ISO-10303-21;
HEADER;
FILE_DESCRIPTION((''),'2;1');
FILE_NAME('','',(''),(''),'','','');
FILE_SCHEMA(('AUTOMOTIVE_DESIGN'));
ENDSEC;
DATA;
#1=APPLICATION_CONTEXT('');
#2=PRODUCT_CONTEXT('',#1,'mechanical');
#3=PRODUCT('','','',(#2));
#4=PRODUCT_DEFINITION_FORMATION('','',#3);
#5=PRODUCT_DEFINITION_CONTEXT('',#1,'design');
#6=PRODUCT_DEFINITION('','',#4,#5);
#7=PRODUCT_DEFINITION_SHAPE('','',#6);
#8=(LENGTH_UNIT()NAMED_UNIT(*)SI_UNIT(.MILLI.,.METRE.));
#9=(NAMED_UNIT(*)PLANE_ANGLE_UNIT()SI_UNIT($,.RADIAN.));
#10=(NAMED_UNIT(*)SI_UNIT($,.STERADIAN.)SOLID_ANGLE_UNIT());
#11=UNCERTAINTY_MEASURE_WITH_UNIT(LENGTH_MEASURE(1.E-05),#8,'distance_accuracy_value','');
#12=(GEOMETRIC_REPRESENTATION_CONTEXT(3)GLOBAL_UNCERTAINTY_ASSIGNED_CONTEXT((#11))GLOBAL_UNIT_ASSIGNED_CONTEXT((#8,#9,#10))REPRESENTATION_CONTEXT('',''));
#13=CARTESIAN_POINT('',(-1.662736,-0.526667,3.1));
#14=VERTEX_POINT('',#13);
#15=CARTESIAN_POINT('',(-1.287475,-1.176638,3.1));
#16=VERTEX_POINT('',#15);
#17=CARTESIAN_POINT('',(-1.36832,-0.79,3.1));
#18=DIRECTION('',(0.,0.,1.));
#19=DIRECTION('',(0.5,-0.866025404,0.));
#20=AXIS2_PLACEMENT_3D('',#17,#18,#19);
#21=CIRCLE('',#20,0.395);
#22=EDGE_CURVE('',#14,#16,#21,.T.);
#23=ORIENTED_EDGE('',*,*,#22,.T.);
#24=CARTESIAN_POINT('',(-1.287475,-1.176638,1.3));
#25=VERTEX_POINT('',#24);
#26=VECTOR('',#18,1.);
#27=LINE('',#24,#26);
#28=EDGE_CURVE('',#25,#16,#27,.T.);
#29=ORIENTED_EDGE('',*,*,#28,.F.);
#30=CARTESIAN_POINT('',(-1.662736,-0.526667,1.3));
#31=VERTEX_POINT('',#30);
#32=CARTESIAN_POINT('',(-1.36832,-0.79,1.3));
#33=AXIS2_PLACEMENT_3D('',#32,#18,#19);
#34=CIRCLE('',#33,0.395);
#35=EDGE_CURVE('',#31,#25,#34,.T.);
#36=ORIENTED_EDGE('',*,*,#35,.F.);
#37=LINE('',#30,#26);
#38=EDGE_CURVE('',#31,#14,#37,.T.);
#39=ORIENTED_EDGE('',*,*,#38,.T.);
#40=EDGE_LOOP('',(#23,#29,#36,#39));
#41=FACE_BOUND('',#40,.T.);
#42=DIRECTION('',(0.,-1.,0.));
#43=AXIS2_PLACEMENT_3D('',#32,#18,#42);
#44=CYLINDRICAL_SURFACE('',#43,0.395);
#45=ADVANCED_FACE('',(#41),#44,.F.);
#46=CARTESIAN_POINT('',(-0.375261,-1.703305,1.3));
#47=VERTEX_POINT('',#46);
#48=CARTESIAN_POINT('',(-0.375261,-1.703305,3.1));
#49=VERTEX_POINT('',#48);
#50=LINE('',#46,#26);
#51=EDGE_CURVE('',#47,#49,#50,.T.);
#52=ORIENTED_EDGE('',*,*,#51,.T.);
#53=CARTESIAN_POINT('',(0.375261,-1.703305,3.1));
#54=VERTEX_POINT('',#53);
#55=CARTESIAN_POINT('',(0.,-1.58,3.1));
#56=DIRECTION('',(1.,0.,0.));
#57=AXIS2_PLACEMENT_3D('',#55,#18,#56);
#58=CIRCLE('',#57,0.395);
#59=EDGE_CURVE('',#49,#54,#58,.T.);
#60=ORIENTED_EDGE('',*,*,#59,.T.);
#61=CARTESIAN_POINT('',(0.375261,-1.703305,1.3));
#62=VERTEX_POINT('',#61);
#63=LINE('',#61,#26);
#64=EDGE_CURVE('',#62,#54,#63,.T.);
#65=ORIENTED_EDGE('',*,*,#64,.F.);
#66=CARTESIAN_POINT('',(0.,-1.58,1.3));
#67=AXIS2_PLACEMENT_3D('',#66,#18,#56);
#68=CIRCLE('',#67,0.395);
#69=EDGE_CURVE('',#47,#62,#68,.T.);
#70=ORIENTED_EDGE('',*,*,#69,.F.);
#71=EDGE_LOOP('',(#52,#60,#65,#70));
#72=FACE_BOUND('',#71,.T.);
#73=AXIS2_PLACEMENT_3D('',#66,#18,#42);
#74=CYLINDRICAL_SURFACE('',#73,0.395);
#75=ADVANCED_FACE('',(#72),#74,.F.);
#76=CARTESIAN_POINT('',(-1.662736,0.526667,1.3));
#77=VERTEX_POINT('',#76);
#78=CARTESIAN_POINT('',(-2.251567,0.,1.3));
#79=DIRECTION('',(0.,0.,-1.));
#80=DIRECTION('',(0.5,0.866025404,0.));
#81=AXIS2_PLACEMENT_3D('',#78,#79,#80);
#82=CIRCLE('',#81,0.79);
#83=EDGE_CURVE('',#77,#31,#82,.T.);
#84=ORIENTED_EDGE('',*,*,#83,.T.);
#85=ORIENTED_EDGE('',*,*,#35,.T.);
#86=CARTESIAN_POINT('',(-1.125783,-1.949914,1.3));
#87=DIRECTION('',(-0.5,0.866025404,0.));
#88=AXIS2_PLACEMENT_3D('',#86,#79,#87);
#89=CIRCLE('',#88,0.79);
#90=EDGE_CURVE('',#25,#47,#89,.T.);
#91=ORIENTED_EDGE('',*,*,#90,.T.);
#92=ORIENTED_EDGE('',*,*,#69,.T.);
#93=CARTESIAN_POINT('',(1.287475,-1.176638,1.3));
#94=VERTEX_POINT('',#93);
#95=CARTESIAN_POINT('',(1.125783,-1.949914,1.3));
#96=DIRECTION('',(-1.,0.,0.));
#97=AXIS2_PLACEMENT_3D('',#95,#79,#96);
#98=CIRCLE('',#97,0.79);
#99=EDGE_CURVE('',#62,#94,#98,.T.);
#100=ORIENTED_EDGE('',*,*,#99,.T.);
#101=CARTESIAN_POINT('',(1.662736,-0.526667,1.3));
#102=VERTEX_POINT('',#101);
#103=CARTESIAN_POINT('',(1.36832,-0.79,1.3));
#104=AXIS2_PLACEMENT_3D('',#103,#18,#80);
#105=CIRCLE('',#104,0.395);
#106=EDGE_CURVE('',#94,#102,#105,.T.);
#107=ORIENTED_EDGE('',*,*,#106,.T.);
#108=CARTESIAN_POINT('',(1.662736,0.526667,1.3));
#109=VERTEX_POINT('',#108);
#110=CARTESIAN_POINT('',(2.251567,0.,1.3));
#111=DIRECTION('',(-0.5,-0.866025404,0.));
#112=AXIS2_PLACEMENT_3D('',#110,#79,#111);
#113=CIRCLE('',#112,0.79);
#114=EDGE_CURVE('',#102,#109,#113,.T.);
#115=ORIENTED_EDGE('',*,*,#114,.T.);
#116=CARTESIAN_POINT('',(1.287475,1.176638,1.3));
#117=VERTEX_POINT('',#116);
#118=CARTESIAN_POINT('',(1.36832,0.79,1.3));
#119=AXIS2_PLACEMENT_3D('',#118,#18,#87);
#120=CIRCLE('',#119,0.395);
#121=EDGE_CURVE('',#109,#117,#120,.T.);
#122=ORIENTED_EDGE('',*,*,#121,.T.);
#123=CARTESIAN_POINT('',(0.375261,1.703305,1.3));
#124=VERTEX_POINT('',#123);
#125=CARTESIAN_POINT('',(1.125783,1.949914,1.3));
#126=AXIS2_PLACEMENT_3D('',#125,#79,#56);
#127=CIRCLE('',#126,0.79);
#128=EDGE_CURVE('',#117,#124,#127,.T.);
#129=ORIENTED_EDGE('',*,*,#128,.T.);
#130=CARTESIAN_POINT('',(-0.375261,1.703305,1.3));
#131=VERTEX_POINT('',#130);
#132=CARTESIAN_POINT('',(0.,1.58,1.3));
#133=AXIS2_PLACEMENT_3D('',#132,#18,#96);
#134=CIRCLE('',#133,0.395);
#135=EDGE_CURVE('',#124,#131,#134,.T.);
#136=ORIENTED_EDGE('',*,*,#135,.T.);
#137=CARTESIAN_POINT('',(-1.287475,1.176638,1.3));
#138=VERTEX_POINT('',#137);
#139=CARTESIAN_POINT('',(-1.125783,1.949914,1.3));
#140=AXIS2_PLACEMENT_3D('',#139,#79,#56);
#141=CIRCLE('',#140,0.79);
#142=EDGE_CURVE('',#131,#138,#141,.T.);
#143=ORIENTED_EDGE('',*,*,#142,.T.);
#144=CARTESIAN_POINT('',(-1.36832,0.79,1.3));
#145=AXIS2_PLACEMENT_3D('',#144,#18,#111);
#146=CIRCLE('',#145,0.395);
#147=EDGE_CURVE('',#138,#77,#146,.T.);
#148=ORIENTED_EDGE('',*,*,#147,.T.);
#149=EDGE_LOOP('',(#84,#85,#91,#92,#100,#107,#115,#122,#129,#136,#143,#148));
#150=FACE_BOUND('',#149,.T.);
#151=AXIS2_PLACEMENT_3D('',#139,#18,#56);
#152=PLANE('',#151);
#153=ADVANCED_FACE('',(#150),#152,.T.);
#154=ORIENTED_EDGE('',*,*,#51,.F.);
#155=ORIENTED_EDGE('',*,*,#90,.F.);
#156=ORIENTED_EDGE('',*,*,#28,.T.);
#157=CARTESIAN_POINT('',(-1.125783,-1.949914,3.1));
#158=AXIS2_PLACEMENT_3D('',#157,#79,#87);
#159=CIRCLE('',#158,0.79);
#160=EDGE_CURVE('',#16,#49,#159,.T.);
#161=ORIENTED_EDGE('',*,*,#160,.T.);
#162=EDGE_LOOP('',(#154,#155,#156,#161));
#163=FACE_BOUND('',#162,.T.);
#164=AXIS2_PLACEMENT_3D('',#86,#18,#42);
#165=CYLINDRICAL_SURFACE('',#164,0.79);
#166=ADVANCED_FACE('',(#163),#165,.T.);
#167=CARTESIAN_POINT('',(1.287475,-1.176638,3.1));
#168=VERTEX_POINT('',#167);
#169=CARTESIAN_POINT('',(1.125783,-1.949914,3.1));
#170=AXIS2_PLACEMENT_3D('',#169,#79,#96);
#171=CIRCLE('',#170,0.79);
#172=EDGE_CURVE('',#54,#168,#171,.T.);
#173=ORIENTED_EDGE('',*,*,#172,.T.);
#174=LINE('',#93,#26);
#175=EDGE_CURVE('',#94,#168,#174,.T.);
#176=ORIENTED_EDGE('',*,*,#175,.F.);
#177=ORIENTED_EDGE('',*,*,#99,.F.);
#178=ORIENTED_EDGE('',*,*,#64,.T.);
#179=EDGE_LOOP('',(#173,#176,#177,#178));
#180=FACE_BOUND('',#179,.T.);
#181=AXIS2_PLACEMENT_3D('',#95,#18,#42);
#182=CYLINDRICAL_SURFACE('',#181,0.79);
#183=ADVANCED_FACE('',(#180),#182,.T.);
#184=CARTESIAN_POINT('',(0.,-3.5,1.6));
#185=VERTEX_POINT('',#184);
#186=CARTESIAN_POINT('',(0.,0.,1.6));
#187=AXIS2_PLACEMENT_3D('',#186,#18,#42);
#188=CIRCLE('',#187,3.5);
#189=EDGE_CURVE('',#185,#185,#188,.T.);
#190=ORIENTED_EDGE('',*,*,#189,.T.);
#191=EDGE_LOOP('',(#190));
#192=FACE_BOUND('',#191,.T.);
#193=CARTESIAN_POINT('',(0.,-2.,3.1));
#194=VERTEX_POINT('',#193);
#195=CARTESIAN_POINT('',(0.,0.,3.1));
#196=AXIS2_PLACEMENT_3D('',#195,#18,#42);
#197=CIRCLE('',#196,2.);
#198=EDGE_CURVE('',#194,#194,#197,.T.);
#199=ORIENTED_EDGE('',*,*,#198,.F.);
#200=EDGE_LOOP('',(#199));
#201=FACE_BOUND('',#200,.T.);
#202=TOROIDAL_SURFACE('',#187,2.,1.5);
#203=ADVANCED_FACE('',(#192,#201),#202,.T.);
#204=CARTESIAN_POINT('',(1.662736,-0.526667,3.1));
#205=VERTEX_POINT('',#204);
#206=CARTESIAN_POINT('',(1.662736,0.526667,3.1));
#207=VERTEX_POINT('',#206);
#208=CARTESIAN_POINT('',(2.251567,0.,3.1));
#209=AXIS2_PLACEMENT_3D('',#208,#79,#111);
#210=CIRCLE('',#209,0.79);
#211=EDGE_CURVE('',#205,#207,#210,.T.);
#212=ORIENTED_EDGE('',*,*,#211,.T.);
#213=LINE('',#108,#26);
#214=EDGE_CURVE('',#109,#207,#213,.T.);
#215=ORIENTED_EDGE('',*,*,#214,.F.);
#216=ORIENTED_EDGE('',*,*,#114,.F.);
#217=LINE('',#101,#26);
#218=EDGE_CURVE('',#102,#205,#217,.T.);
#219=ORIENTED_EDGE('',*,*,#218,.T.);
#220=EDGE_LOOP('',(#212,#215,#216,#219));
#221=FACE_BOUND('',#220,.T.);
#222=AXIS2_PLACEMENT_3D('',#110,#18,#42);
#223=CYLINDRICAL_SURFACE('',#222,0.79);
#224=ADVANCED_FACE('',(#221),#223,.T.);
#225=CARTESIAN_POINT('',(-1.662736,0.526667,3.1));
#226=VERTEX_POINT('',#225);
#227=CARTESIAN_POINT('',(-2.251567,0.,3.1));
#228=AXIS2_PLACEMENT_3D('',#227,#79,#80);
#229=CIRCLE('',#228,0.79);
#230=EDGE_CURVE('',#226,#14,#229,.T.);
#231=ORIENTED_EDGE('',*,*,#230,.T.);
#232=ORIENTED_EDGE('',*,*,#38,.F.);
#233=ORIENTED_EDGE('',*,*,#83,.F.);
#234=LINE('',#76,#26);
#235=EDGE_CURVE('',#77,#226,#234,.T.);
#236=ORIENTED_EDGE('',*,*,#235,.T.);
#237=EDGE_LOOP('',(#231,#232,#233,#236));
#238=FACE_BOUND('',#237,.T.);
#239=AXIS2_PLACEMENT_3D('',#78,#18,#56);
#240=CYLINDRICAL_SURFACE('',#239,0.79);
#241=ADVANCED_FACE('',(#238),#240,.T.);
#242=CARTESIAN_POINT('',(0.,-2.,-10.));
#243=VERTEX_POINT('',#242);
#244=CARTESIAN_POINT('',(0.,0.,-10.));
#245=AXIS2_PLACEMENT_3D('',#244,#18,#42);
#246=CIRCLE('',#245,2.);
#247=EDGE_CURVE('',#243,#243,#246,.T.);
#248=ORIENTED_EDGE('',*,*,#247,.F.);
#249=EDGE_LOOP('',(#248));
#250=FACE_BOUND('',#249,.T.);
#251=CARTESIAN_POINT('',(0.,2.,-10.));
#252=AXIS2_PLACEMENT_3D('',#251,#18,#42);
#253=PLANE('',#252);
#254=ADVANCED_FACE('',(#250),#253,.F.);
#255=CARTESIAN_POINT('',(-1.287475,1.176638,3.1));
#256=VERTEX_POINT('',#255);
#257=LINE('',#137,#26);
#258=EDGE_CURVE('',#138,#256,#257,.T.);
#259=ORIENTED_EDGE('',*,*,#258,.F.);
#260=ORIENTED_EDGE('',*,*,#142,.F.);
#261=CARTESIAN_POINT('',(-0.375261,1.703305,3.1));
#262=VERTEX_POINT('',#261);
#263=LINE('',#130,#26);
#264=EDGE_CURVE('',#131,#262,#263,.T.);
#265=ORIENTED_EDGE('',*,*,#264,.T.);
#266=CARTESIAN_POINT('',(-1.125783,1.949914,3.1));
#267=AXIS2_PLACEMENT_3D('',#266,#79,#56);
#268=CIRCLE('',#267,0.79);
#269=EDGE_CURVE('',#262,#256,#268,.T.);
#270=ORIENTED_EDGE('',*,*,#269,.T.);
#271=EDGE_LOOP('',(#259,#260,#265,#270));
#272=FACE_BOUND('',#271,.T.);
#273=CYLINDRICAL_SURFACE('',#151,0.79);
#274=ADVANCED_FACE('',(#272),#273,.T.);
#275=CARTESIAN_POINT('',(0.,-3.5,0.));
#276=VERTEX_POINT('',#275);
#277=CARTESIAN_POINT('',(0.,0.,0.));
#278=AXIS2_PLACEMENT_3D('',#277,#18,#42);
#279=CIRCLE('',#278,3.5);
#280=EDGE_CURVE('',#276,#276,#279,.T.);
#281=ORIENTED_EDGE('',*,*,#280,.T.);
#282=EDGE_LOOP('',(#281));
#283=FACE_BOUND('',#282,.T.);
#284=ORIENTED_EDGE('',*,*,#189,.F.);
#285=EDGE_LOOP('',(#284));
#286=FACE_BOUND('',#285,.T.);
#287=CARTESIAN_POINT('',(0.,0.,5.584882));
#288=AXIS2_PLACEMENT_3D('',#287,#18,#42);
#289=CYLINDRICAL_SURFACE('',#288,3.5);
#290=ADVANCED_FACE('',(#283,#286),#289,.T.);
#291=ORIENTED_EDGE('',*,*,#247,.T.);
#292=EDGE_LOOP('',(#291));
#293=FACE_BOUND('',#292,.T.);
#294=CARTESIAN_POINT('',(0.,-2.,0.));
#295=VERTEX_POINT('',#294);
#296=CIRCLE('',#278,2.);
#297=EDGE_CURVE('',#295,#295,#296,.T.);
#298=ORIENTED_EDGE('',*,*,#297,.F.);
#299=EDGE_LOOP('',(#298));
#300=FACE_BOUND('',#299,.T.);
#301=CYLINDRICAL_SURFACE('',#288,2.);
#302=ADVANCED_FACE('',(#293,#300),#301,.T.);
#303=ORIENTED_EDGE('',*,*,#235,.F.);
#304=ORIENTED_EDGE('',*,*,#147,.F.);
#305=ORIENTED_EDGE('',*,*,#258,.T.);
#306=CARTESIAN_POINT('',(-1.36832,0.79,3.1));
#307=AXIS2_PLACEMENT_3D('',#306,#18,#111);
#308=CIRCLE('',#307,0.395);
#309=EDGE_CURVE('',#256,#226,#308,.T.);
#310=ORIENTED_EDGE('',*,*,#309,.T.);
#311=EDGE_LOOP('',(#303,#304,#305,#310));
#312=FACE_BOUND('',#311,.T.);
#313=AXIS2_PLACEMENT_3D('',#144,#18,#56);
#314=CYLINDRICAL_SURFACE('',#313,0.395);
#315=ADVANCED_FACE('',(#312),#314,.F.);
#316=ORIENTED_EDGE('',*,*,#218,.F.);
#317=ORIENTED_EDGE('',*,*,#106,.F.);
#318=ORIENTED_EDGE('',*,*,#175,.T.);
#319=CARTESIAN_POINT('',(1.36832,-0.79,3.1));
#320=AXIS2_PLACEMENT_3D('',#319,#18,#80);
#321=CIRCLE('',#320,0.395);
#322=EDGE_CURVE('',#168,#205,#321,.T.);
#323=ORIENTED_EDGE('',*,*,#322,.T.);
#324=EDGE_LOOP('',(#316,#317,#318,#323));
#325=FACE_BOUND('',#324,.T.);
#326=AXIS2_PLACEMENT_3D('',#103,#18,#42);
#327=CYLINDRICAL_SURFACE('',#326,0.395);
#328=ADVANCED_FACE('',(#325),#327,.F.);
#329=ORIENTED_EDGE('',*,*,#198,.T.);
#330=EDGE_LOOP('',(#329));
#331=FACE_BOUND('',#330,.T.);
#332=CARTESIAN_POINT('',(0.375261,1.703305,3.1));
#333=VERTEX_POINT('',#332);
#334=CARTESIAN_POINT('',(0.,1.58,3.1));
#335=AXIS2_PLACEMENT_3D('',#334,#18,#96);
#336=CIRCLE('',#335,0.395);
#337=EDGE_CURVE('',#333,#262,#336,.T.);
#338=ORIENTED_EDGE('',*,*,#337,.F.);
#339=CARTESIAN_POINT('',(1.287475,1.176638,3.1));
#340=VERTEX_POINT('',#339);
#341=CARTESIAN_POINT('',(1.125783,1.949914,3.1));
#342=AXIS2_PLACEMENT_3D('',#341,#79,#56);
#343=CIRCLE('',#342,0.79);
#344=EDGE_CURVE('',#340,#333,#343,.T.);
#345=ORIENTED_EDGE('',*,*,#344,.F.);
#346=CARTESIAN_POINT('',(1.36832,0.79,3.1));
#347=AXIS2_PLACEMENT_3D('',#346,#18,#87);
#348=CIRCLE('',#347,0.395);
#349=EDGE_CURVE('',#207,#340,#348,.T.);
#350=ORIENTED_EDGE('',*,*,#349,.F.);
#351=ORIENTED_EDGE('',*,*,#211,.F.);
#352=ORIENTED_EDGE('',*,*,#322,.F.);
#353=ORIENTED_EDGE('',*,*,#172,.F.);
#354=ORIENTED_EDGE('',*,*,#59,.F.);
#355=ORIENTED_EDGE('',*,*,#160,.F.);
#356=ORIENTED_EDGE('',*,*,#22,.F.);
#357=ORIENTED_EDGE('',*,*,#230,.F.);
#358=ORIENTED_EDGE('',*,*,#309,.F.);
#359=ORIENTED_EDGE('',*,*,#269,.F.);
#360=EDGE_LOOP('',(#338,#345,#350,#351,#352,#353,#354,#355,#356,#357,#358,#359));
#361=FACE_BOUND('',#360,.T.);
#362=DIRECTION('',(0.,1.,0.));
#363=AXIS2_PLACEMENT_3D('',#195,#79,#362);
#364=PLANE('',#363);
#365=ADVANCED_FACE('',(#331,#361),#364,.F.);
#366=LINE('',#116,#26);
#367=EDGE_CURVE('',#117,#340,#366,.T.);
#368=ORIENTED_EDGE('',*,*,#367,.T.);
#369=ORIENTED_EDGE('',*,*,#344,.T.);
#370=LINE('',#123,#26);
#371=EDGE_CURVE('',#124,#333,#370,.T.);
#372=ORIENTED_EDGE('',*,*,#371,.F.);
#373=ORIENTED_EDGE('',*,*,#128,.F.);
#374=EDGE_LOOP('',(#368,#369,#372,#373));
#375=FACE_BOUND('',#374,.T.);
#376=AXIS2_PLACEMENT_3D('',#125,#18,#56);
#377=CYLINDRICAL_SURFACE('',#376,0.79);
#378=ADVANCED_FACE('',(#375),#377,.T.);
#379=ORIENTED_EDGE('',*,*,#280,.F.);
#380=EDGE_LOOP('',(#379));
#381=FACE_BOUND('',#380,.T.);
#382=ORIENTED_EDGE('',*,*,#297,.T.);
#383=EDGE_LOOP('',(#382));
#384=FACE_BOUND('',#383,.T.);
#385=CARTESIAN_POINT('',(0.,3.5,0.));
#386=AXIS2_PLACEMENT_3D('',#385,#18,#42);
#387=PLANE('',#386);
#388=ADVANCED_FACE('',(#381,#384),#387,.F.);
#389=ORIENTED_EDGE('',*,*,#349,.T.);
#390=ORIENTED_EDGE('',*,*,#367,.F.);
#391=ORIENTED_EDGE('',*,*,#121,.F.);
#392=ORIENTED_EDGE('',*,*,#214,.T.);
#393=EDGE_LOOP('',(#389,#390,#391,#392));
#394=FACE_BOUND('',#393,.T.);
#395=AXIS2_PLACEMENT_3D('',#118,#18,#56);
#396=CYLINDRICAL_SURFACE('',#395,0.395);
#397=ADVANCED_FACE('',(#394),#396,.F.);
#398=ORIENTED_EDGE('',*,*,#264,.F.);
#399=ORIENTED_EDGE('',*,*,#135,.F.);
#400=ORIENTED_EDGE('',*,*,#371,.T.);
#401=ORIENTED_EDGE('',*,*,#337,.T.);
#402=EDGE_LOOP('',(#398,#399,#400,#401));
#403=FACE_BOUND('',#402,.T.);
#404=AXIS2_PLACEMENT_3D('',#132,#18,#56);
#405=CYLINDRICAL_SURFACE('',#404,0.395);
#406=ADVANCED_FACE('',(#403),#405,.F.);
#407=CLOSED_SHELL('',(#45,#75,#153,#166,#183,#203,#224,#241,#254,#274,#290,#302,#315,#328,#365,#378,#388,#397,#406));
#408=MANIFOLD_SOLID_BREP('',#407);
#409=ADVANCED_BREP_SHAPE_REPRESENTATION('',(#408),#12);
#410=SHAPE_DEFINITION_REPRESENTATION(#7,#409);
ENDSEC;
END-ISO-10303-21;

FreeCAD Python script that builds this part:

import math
import FreeCAD as App
import Part
import Sketcher

V = App.Vector
Q = App.Units.Quantity

doc = App.newDocument("Part")
body = doc.addObject("PartDesign::Body", "Body")

# Sketch on YZ plane
sketch1 = body.newObject("Sketcher::SketchObject", "Sketch")
sketch1.AttachmentSupport = (doc.getObject("YZ_Plane"), [""])
sketch1.MapMode = "FlatFace"
sketch1.addGeometry([
    Part.LineSegment(V(2, 3.1, 0), V(0, 3.1, 0)),  # 0
    Part.LineSegment(V(0, 3.1, 0), V(0, -10, 0)),  # 1
    Part.LineSegment(V(0, -10, 0), V(2, -10, 0)),  # 2
    Part.LineSegment(V(2, -10, 0), V(2, 0, 0)),  # 3
    Part.LineSegment(V(2, 0, 0), V(3.5, 0, 0)),  # 4
    Part.LineSegment(V(3.5, 0, 0), V(3.5, 1.6, 0)),  # 5
    Part.ArcOfCircle(Part.Circle(V(2, 1.6, 0), V(0, 0, 1), 1.5), math.radians(0), math.radians(90)),  # 6
], False)
sketch1.addConstraint([
    Sketcher.Constraint("Coincident", 0, 2, 1, 1),
    Sketcher.Constraint("Coincident", 1, 2, 2, 1),
    Sketcher.Constraint("Coincident", 2, 2, 3, 1),
    Sketcher.Constraint("Coincident", 3, 2, 4, 1),
    Sketcher.Constraint("Coincident", 4, 2, 5, 1),
    Sketcher.Constraint("Tangent", 5, 2, 6, 1),
    Sketcher.Constraint("Tangent", 6, 2, 0, 1),
    Sketcher.Constraint("Horizontal", 0),
    Sketcher.Constraint("Vertical", 1),
    Sketcher.Constraint("Horizontal", 2),
    Sketcher.Constraint("Vertical", 3),
    Sketcher.Constraint("Horizontal", 4),
    Sketcher.Constraint("Vertical", 5),
    Sketcher.Constraint("PointOnObject", 0, 2, -2),
    Sketcher.Constraint("PointOnObject", 3, 2, -1),
    Sketcher.Constraint("Vertical", 6, 3, 2, 2),
    Sketcher.Constraint("Radius", 6, 1.5),
    Sketcher.Constraint("DistanceX", 0, 2, 0, 1, 2.0),
    Sketcher.Constraint("DistanceY", 3, 1, 3, 2, 10.0),
    Sketcher.Constraint("DistanceY", 1, 2, 1, 1, 13.1),
])
revolution = body.newObject("PartDesign::Revolution", "Revolution")
revolution.Profile = sketch1
revolution.ReferenceAxis = (sketch1, ["V_Axis"])
revolution.Angle = 360

# Sketch on XY plane
sketch2 = body.newObject("Sketcher::SketchObject", "Sketch001")
sketch2.AttachmentSupport = (doc.getObject("XY_Plane"), [""])
sketch2.MapMode = "FlatFace"
sketch2.AttachmentOffset = App.Placement(V(0, 0, 3.1), App.Rotation())
sketch2.addGeometry([
    Part.LineSegment(V(-0.73, 1.27, 0), V(0, 0, 0)),  # 0
    Part.LineSegment(V(0, 0, 0), V(0.73, 1.27, 0)),  # 1
    Part.ArcOfCircle(Part.Circle(V(1.13, 1.95, 0), V(0, 0, 1), 0.79), math.radians(-162), math.radians(-120)),  # 2
    Part.ArcOfCircle(Part.Circle(V(0, 1.58, 0), V(0, 0, 1), 0.4), math.radians(18), math.radians(162)),  # 3
    Part.ArcOfCircle(Part.Circle(V(-1.13, 1.95, 0), V(0, 0, 1), 0.79), math.radians(-60), math.radians(-18)),  # 4
], False)
sketch2.addConstraint([
    Sketcher.Constraint("Coincident", 0, 2, 1, 1),
    Sketcher.Constraint("Coincident", 1, 2, 2, 2),
    Sketcher.Constraint("Tangent", 2, 1, 3, 1),
    Sketcher.Constraint("Tangent", 3, 2, 4, 2),
    Sketcher.Constraint("Coincident", 4, 1, 0, 1),
    Sketcher.Constraint("Coincident", 0, 2, -1, 1),
    Sketcher.Constraint("Equal", 2, 4),
    Sketcher.Constraint("Symmetric", 2, 3, 4, 3, -2),
    Sketcher.Constraint("Horizontal", 1, 2, 4, 1),
    Sketcher.Constraint("Angle", 0, Q("-60 deg")),
    Sketcher.Constraint("Radius", 2, 0.79),
    Sketcher.Constraint("Radius", 3, 0.395),
    Sketcher.Constraint("DistanceY", -1, 1, 3, 3, 1.58),
    Sketcher.Constraint("DistanceX", 1, 2, 2, 3, 0.395),
])
pocket1 = body.newObject("PartDesign::Pocket", "Pocket")
pocket1.Profile = sketch2
pocket1.Length = 1.8
doc.recompute()

polarpattern = body.newObject("PartDesign::PolarPattern", "PolarPattern")
polarpattern.Originals = [pocket1]
polarpattern.Axis = (doc.getObject("Z_Axis"), [""])
polarpattern.Angle = 360
polarpattern.Occurrences = 6
body.Tip = polarpattern

doc.recompute()
